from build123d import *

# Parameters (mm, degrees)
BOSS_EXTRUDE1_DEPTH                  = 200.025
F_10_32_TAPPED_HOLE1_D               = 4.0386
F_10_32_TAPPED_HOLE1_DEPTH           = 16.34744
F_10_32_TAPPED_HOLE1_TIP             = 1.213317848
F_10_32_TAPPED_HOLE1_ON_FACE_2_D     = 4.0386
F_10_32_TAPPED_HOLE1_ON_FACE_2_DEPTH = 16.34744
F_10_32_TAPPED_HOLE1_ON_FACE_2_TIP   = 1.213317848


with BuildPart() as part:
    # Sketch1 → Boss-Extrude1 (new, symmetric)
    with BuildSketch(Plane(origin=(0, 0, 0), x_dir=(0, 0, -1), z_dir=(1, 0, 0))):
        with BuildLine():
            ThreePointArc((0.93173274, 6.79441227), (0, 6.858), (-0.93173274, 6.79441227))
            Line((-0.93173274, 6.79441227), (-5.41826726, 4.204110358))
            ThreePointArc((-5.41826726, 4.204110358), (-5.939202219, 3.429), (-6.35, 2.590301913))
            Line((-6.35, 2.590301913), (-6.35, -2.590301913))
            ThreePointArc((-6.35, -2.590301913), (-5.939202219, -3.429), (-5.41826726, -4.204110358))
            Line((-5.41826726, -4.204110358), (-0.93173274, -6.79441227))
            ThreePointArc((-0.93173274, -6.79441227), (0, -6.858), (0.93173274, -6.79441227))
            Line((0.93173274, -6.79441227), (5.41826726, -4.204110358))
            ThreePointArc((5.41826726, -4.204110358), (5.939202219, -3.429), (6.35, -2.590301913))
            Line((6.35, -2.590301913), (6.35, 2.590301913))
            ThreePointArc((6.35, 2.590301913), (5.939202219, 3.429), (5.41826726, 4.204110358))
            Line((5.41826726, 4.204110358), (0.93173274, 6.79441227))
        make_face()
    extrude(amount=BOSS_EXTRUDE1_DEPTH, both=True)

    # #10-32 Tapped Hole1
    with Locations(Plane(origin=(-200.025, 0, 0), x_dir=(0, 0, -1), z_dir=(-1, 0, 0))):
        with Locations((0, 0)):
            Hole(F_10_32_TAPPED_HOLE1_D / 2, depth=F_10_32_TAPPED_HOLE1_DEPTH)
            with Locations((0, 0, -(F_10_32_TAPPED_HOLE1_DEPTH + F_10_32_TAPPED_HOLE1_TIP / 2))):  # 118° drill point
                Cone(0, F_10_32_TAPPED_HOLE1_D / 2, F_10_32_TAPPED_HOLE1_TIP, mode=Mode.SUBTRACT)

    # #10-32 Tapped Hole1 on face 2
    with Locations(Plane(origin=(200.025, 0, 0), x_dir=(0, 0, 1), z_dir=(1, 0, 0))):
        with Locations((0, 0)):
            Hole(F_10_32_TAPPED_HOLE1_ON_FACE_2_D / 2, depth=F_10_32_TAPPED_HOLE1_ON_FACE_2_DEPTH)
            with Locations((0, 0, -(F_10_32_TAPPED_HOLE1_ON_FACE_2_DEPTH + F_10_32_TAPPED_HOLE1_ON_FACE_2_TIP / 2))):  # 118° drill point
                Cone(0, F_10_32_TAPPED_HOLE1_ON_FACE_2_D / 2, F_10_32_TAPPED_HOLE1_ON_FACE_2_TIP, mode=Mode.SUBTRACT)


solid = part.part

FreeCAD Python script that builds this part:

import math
import FreeCAD as App
import Part
import Sketcher

V = App.Vector
Q = App.Units.Quantity

doc = App.newDocument("Part")
body = doc.addObject("PartDesign::Body", "Body")

# Sketch on YZ plane
sketch1 = doc.addObject("Sketcher::SketchObject", "Sketch")
body.addObject(sketch1)
sketch1.AttachmentSupport = (doc.YZ_Plane, [""])
sketch1.MapMode = "FlatFace"
sketch1.addGeometry([
    Part.ArcOfCircle(Part.Circle(V(0, 0, 0), V(0, 0, 1), 6.9), math.radians(-7.81), math.radians(7.81)),  # 0
    Part.LineSegment(V(6.8, 0.9, 0), V(4.2, 5.4, 0)),  # 1
    Part.ArcOfCircle(Part.Circle(V(0, 0, 0), V(0, 0, 1), 6.9), math.radians(52.19), math.radians(67.81)),  # 2
    Part.LineSegment(V(2.6, 6.3, 0), V(-2.6, 6.3, 0)),  # 3
    Part.ArcOfCircle(Part.Circle(V(0, 0, 0), V(0, 0, 1), 6.9), math.radians(112.19), math.radians(127.81)),  # 4
    Part.LineSegment(V(-4.2, 5.4, 0), V(-6.8, 0.9, 0)),  # 5
    Part.ArcOfCircle(Part.Circle(V(0, 0, 0), V(0, 0, 1), 6.9), math.radians(172.19), math.radians(187.81)),  # 6
    Part.LineSegment(V(-6.8, -0.9, 0), V(-4.2, -5.4, 0)),  # 7
    Part.ArcOfCircle(Part.Circle(V(0, 0, 0), V(0, 0, 1), 6.9), math.radians(-127.81), math.radians(-112.19)),  # 8
    Part.LineSegment(V(-2.6, -6.3, 0), V(2.6, -6.3, 0)),  # 9
    Part.ArcOfCircle(Part.Circle(V(0, 0, 0), V(0, 0, 1), 6.9), math.radians(-67.81), math.radians(-52.19)),  # 10
    Part.LineSegment(V(4.2, -5.4, 0), V(6.8, -0.9, 0)),  # 11
], False)
sketch1.addConstraint([
    Sketcher.Constraint("Coincident", 0, 2, 1, 1),
    Sketcher.Constraint("Coincident", 1, 2, 2, 1),
    Sketcher.Constraint("Coincident", 2, 2, 3, 1),
    Sketcher.Constraint("Coincident", 3, 2, 4, 1),
    Sketcher.Constraint("Coincident", 4, 2, 5, 1),
    Sketcher.Constraint("Coincident", 5, 2, 6, 1),
    Sketcher.Constraint("Coincident", 6, 2, 7, 1),
    Sketcher.Constraint("Coincident", 7, 2, 8, 1),
    Sketcher.Constraint("Coincident", 8, 2, 9, 1),
    Sketcher.Constraint("Coincident", 9, 2, 10, 1),
    Sketcher.Constraint("Coincident", 10, 2, 11, 1),
    Sketcher.Constraint("Coincident", 11, 2, 0, 1),
    Sketcher.Constraint("Horizontal", 3),
    Sketcher.Constraint("Horizontal", 9),
    Sketcher.Constraint("Coincident", 0, 3, -1, 1),
    Sketcher.Constraint("Coincident", 2, 3, -1, 1),
    Sketcher.Constraint("Coincident", 4, 3, -1, 1),
    Sketcher.Constraint("Coincident", 6, 3, -1, 1),
    Sketcher.Constraint("Coincident", 8, 3, -1, 1),
    Sketcher.Constraint("Coincident", 10, 3, -1, 1),
    Sketcher.Constraint("Equal", 0, 2),
    Sketcher.Constraint("Equal", 2, 4),
    Sketcher.Constraint("Equal", 4, 6),
    Sketcher.Constraint("Equal", 6, 8),
    Sketcher.Constraint("Equal", 8, 10),
    Sketcher.Constraint("Parallel", 1, 7),
    Sketcher.Constraint("Parallel", 5, 11),
    Sketcher.Constraint("Horizontal", 1, 2, 4, 2),
    Sketcher.Constraint("Horizontal", 0, 2, 5, 2),
    Sketcher.Constraint("Horizontal", 7, 2, 10, 2),
    Sketcher.Constraint("Vertical", 5, 2, 6, 2),
    Sketcher.Constraint("Vertical", 3, 2, 8, 2),
    Sketcher.Constraint("Radius", 0, Q("0.27 in")),
    Sketcher.Constraint("Angle", 1, Q("120 deg")),
    Sketcher.Constraint("DistanceY", -1, 1, 2, 2, Q("0.25 in")),
    Sketcher.Constraint("DistanceY", 6, 2, 4, 2, Q("0.25 in")),
])
pad1 = doc.addObject("PartDesign::Pad", "Pad")
body.addObject(pad1)
pad1.Profile = sketch1
pad1.Length = Q("15.75 in")
pad1.Midplane = True

# Sketch on YZ plane
sketch2 = doc.addObject("Sketcher::SketchObject", "Sketch001")
body.addObject(sketch2)
sketch2.AttachmentSupport = (doc.YZ_Plane, [""])
sketch2.MapMode = "FlatFace"
sketch2.AttachmentOffset = App.Placement(V(0, 0, -7.875 * 25.4), App.Rotation())
sketch2.addGeometry(Part.Circle(V(0, 0, 0), V(0, 0, 1), 2), False)
sketch2.addConstraint([
    Sketcher.Constraint("Coincident", 0, 3, -1, 1),
    Sketcher.Constraint("Diameter", 0, Q("0.159 in")),
])
doc.recompute()
hole = doc.addObject("PartDesign::Hole", "Hole")
body.addObject(hole)
hole.Profile = sketch2
hole.ThreadType = "None"
hole.Diameter = Q("0.159 in")
hole.DepthType = "Dimension"
hole.Depth = Q("0.6436 in")
hole.DrillPoint = "Angled"
hole.DrillPointAngle = 118
hole.Reversed = True

# Sketch on YZ plane
sketch3 = doc.addObject("Sketcher::SketchObject", "Sketch002")
body.addObject(sketch3)
sketch3.AttachmentSupport = (doc.YZ_Plane, [""])
sketch3.MapMode = "FlatFace"
sketch3.AttachmentOffset = App.Placement(V(0, 0, 7.875 * 25.4), App.Rotation())
sketch3.addGeometry(Part.Circle(V(0, 0, 0), V(0, 0, 1), 2), False)
sketch3.addConstraint([
    Sketcher.Constraint("Coincident", 0, 3, -1, 1),
    Sketcher.Constraint("Diameter", 0, Q("0.159 in")),
])
doc.recompute()
hole2 = doc.addObject("PartDesign::Hole", "Hole001")
body.addObject(hole2)
hole2.Profile = sketch3
hole2.ThreadType = "None"
hole2.Diameter = Q("0.159 in")
hole2.DepthType = "Dimension"
hole2.Depth = Q("0.6436 in")
hole2.DrillPoint = "Angled"
hole2.DrillPointAngle = 118

doc.recompute()
